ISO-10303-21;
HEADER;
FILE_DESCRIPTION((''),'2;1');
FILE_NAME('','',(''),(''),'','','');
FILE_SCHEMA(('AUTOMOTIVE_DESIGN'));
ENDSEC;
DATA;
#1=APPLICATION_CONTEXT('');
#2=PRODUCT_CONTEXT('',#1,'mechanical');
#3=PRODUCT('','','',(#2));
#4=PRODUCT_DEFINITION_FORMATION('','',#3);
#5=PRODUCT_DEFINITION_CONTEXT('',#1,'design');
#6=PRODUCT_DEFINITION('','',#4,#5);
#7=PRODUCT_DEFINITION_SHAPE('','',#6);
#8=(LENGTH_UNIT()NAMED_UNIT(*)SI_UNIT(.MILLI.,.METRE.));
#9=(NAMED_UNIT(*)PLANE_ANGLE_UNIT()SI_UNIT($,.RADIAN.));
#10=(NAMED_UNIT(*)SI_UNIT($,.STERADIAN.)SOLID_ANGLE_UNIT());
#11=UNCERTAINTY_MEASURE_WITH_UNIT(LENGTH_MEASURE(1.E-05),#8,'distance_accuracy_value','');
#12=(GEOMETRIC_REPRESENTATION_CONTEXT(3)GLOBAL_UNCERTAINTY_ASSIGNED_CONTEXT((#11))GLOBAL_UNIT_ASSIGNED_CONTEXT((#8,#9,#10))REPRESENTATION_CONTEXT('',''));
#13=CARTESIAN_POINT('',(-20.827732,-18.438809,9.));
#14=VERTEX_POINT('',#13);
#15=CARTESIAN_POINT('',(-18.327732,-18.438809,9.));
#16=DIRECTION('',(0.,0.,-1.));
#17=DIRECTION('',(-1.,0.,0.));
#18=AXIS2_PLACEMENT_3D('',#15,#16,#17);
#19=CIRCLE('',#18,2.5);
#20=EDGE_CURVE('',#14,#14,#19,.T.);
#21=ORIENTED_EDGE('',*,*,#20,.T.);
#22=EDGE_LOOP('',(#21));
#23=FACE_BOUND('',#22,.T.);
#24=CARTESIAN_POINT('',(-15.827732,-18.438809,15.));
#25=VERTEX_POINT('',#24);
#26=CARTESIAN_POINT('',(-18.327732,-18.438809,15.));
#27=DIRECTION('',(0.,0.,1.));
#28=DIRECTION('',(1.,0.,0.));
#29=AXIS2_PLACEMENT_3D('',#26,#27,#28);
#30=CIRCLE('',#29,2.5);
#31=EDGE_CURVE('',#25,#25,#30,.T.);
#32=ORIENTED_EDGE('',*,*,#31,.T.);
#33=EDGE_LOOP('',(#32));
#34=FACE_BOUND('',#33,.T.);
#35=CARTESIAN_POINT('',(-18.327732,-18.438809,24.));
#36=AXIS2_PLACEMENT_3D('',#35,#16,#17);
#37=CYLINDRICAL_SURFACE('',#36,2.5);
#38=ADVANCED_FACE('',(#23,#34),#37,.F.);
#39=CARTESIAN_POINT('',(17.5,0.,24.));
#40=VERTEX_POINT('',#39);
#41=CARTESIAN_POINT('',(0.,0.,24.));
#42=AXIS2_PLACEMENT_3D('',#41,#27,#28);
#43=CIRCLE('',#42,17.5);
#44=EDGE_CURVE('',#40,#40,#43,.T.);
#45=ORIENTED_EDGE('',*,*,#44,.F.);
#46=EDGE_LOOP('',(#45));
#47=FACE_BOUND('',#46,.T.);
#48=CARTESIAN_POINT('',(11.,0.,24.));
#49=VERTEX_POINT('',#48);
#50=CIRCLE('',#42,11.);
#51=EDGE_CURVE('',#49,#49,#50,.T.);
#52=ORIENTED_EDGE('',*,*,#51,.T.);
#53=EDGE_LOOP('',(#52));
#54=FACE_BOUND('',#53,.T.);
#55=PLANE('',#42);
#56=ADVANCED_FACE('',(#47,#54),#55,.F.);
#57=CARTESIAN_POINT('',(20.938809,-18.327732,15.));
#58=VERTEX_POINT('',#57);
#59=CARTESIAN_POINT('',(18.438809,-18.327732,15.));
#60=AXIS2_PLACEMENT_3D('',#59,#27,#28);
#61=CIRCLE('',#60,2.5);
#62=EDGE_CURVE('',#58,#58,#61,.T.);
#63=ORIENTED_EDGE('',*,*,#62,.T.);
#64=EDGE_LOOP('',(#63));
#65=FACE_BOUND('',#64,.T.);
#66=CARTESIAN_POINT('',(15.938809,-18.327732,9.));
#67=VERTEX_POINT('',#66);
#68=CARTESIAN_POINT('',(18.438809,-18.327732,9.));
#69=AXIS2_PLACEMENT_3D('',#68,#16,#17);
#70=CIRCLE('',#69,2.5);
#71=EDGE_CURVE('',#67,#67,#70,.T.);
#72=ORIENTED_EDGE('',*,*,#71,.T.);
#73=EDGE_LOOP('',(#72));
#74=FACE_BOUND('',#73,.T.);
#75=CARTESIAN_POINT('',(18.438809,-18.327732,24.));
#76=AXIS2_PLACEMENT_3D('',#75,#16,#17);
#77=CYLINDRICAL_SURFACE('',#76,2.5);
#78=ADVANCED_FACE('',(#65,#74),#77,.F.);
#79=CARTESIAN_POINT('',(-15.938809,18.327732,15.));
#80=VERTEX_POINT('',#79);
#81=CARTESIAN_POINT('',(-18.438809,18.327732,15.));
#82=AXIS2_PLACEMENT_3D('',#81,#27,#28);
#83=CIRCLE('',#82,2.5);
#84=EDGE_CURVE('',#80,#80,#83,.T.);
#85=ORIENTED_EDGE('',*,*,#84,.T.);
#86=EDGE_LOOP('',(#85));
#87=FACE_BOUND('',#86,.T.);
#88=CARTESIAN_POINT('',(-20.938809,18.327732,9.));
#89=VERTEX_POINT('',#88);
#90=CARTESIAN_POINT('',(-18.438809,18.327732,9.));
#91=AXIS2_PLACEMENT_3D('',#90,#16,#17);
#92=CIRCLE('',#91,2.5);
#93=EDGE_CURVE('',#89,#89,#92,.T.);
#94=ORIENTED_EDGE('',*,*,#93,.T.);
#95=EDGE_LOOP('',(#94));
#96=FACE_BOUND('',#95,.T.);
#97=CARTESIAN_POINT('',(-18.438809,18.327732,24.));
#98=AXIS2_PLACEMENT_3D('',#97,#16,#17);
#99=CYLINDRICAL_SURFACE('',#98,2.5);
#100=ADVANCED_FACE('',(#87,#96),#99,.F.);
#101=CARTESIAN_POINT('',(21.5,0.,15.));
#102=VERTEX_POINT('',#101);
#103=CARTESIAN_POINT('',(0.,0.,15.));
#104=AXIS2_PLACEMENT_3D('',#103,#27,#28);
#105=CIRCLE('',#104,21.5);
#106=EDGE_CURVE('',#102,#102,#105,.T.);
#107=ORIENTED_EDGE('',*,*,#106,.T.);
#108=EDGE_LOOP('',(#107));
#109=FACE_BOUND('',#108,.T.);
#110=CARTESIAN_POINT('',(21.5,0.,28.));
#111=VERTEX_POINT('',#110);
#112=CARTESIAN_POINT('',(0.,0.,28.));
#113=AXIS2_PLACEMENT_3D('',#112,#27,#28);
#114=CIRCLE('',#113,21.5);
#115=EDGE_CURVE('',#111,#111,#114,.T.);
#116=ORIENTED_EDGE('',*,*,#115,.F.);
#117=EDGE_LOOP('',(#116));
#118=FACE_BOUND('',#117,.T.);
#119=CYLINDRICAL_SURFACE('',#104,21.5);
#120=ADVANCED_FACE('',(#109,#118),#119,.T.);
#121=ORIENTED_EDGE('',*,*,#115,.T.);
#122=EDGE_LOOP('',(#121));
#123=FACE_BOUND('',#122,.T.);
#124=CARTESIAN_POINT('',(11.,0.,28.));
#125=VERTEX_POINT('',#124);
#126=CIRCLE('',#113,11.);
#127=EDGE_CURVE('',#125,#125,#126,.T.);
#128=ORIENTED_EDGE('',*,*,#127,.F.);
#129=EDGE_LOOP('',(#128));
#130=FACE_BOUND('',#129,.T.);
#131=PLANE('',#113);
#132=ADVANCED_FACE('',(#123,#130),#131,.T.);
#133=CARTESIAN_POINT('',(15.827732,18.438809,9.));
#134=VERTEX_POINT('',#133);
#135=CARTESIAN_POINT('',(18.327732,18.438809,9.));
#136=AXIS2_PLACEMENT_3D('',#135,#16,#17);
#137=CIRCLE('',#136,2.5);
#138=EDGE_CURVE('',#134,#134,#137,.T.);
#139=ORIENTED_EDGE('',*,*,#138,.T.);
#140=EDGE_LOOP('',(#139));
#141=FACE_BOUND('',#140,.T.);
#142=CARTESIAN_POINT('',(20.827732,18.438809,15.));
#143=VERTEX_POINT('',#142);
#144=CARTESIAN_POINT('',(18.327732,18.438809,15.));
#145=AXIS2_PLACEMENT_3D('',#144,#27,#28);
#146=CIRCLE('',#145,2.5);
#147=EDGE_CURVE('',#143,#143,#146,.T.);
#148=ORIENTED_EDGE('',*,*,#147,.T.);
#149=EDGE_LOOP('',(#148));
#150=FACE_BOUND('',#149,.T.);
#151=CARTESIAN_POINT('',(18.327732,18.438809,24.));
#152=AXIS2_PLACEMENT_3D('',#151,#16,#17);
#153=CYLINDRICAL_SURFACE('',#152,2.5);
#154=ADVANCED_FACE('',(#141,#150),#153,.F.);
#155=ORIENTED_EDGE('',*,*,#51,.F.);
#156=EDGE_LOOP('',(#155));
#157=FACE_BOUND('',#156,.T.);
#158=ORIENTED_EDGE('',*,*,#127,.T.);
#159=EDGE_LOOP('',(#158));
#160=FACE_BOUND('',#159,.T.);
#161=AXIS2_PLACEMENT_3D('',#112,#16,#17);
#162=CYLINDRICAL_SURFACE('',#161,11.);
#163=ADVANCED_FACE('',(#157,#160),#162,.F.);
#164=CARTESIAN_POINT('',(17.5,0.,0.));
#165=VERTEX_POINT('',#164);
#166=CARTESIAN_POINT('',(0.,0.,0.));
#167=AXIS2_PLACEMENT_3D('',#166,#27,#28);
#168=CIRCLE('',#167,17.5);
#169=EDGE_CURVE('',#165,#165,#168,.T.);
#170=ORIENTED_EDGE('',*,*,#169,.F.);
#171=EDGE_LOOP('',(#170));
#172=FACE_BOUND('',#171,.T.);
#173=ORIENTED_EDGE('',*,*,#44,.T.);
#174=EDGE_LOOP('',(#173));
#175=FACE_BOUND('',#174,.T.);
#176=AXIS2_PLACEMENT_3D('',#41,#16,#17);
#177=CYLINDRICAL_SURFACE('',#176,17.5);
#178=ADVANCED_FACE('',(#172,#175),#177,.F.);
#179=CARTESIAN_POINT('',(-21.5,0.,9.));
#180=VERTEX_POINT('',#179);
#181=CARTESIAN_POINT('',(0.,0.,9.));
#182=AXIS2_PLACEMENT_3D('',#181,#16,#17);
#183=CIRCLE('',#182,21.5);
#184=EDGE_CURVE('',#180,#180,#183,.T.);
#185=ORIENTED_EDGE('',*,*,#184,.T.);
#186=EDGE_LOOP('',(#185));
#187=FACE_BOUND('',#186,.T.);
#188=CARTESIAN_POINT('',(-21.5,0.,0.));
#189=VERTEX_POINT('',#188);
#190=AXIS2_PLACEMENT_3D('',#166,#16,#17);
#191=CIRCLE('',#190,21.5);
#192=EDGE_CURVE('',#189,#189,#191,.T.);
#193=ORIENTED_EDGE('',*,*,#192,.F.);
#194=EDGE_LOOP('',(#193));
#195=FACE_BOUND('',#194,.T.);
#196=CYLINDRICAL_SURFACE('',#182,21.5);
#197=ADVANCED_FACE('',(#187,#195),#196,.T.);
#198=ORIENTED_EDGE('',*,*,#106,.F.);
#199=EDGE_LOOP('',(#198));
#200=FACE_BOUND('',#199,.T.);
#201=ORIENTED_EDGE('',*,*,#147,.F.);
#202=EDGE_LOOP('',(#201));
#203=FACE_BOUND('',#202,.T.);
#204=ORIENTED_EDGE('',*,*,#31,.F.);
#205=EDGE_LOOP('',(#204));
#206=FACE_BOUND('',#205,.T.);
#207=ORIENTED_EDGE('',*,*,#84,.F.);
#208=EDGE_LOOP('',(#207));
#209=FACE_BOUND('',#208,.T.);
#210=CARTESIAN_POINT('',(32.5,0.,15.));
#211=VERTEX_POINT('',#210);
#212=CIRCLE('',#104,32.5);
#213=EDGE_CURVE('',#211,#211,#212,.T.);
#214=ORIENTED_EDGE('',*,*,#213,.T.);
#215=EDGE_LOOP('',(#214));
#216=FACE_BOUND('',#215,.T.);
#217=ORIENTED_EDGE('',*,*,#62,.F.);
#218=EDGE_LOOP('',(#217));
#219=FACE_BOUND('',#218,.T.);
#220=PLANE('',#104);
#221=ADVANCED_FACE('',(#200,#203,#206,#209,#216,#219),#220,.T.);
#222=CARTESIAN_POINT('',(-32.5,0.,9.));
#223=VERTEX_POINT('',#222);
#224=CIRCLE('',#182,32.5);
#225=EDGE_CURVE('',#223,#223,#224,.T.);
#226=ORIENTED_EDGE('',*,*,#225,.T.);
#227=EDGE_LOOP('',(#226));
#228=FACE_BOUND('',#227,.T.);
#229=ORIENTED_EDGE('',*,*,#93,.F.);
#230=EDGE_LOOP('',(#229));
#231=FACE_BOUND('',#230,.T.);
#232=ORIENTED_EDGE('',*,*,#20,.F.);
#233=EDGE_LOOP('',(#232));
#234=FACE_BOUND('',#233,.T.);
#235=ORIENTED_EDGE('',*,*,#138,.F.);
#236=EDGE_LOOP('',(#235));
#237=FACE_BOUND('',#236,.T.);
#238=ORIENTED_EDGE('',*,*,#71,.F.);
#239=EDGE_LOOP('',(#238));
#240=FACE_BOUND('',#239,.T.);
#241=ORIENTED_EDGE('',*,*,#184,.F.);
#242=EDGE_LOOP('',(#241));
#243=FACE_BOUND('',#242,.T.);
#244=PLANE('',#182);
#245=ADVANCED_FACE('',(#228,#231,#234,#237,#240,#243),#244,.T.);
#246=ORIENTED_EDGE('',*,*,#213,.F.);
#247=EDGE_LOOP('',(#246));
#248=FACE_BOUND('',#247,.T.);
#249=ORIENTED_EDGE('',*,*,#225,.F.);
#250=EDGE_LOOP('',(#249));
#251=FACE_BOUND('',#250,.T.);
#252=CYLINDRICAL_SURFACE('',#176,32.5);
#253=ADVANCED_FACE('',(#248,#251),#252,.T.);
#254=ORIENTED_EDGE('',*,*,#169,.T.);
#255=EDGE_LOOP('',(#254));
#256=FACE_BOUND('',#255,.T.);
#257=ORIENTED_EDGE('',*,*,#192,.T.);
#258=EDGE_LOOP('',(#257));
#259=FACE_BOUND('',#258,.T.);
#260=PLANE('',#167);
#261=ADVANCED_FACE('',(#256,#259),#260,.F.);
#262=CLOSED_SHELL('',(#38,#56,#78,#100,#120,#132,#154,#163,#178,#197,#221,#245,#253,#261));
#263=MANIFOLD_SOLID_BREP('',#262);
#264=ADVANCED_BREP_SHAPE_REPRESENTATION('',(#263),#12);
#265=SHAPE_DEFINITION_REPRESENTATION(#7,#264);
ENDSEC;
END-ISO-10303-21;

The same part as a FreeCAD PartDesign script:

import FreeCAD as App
import Part
import Sketcher
Q = App.Units.Quantity

doc = App.newDocument("Part")
body = doc.addObject("PartDesign::Body", "Body")

# Sketch on XY plane
sketch1 = body.newObject("Sketcher::SketchObject", "Sketch")
sketch1.AttachmentSupport = (doc.getObject("XY_Plane"), [""])
sketch1.MapMode = "FlatFace"
sketch1.addGeometry(Part.Circle(App.Vector(0, 0, 0), App.Vector(0, 0, 1), 32.5), False)
sketch1.addGeometry(Part.Circle(App.Vector(-18.3, -18.4, 0), App.Vector(0, 0, 1), 2.5), False)
sketch1.addGeometry(Part.Circle(App.Vector(18.4, -18.3, 0), App.Vector(0, 0, 1), 2.5), False)
sketch1.addGeometry(Part.Circle(App.Vector(-18.4, 18.3, 0), App.Vector(0, 0, 1), 2.5), False)
sketch1.addGeometry(Part.Circle(App.Vector(0, 0, 0), App.Vector(0, 0, 1), 17.5), False)
sketch1.addGeometry(Part.Circle(App.Vector(18.3, 18.4, 0), App.Vector(0, 0, 1), 2.5), False)
sketch1.addConstraint(Sketcher.Constraint("Coincident", 0, 3, -1, 1))
sketch1.addConstraint(Sketcher.Constraint("Coincident", 4, 3, -1, 1))
sketch1.addConstraint(Sketcher.Constraint("Equal", 1, 2))
sketch1.addConstraint(Sketcher.Constraint("Equal", 2, 3))
sketch1.addConstraint(Sketcher.Constraint("Equal", 3, 5))
sketch1.addConstraint(Sketcher.Constraint("Symmetric", 2, 3, 3, 3, -1, 1))
sketch1.addConstraint(Sketcher.Constraint("Symmetric", 1, 3, 5, 3, -1, 1))
sketch1.addConstraint(Sketcher.Constraint("Diameter", 0, Q("65 mm")))
sketch1.addConstraint(Sketcher.Constraint("Diameter", 1, Q("5 mm")))
sketch1.addConstraint(Sketcher.Constraint("Diameter", 4, Q("35 mm")))
sketch1.addConstraint(Sketcher.Constraint("DistanceX", 1, 3, -1, 1, Q("18.327732 mm")))
sketch1.addConstraint(Sketcher.Constraint("DistanceY", 1, 3, -1, 1, Q("18.438809 mm")))
sketch1.addConstraint(Sketcher.Constraint("DistanceX", -1, 1, 2, 3, Q("18.438809 mm")))
sketch1.addConstraint(Sketcher.Constraint("DistanceY", 2, 3, -1, 1, Q("18.327732 mm")))
pad1 = body.newObject("PartDesign::Pad", "Pad")
pad1.Profile = sketch1
pad1.Length = 24

# Sketch on XY plane
sketch2 = body.newObject("Sketcher::SketchObject", "Sketch001")
sketch2.AttachmentSupport = (doc.getObject("XY_Plane"), [""])
sketch2.MapMode = "FlatFace"
sketch2.AttachmentOffset = App.Placement(App.Vector(0, 0, 24), App.Rotation())
sketch2.addGeometry(Part.Circle(App.Vector(0, 0, 0), App.Vector(0, 0, 1), 35), False)
sketch2.addGeometry(Part.Circle(App.Vector(0, 0, 0), App.Vector(0, 0, 1), 22), False)
sketch2.addConstraint(Sketcher.Constraint("Coincident", 0, 3, -1, 1))
sketch2.addConstraint(Sketcher.Constraint("Coincident", 1, 3, -1, 1))
sketch2.addConstraint(Sketcher.Constraint("Diameter", 0, Q("70 mm")))
sketch2.addConstraint(Sketcher.Constraint("Diameter", 1, Q("43 mm")))
pocket1 = body.newObject("PartDesign::Pocket", "Pocket")
pocket1.Profile = sketch2
pocket1.Length = 9

# Sketch on XY plane
sketch3 = body.newObject("Sketcher::SketchObject", "Sketch002")
sketch3.AttachmentSupport = (doc.getObject("XY_Plane"), [""])
sketch3.MapMode = "FlatFace"
sketch3.AttachmentOffset = App.Placement(App.Vector(0, 0, 9), App.Rotation())
sketch3.addGeometry(Part.Circle(App.Vector(0, 0, 0), App.Vector(0, 0, 1), 35), False)
sketch3.addGeometry(Part.Circle(App.Vector(0, 0, 0), App.Vector(0, 0, 1), 22), False)
sketch3.addConstraint(Sketcher.Constraint("Coincident", 0, 3, -1, 1))
sketch3.addConstraint(Sketcher.Constraint("Coincident", 1, 3, -1, 1))
sketch3.addConstraint(Sketcher.Constraint("Diameter", 0, Q("70 mm")))
sketch3.addConstraint(Sketcher.Constraint("Diameter", 1, Q("43 mm")))
pocket2 = body.newObject("PartDesign::Pocket", "Pocket001")
pocket2.Profile = sketch3
pocket2.Length = 9

# Sketch on XY plane
sketch4 = body.newObject("Sketcher::SketchObject", "Sketch003")
sketch4.AttachmentSupport = (doc.getObject("XY_Plane"), [""])
sketch4.MapMode = "FlatFace"
sketch4.AttachmentOffset = App.Placement(App.Vector(0, 0, 28), App.Rotation())
sketch4.addGeometry(Part.Circle(App.Vector(0, 0, 0), App.Vector(0, 0, 1), 22), False)
sketch4.addGeometry(Part.Circle(App.Vector(0, 0, 0), App.Vector(0, 0, 1), 11), False)
sketch4.addConstraint(Sketcher.Constraint("Coincident", 0, 3, -1, 1))
sketch4.addConstraint(Sketcher.Constraint("Coincident", 1, 3, -1, 1))
sketch4.addConstraint(Sketcher.Constraint("Diameter", 0, Q("43 mm")))
sketch4.addConstraint(Sketcher.Constraint("Diameter", 1, Q("22 mm")))
pad2 = body.newObject("PartDesign::Pad", "Pad001")
pad2.Profile = sketch4
pad2.Length = 4
pad2.Reversed = True

doc.recompute()
